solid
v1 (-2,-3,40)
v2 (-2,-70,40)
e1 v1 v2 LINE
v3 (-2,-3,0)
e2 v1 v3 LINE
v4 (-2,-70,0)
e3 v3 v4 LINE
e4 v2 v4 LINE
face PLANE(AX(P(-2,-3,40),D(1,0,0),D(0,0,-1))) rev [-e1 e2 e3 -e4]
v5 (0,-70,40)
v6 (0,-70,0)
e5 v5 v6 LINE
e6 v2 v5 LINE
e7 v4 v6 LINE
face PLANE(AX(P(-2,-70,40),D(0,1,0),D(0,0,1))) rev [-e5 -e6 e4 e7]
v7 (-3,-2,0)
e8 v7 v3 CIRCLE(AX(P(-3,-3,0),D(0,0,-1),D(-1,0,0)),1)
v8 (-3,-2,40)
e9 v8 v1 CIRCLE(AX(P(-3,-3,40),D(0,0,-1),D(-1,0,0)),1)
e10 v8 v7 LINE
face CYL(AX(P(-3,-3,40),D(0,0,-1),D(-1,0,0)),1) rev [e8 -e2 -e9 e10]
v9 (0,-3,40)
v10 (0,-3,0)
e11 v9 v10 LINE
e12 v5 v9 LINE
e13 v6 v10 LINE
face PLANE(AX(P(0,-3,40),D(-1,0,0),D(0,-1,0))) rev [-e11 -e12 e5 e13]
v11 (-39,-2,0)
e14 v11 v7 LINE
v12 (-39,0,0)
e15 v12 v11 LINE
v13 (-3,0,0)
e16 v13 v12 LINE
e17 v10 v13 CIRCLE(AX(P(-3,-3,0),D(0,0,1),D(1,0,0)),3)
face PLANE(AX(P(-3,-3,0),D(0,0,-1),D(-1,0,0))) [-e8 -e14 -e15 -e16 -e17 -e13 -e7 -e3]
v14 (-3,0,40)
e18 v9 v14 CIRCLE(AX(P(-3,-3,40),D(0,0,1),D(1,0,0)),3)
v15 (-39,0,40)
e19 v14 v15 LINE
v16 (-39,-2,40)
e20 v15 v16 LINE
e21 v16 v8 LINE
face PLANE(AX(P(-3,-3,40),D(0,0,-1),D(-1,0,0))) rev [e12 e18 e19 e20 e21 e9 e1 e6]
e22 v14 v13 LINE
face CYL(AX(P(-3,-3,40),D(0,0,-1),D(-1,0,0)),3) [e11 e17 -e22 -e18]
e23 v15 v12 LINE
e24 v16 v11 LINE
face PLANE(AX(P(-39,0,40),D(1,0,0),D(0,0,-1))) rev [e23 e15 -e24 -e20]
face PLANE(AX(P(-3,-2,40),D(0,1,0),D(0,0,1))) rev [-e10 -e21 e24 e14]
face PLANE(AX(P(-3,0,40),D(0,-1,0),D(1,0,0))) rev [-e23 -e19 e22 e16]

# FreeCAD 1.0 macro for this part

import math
import FreeCAD as App
import Part
import Sketcher

V = App.Vector

doc = App.newDocument("Part")
body = doc.addObject("PartDesign::Body", "Body")

sketch1 = body.newObject("Sketcher::SketchObject", "Sketch")
sketch1.AttachmentSupport = (doc.getObject("XY_Plane"), [""])
sketch1.MapMode = "FlatFace"
sketch1.addGeometry([
    Part.LineSegment(V(-3, 0, 0), V(-39, 0, 0)),
    Part.LineSegment(V(-39, 0, 0), V(-39, -2, 0)),
    Part.LineSegment(V(-39, -2, 0), V(-3, -2, 0)),
    Part.ArcOfCircle(Part.Circle(V(-3, -3, 0), V(0, 0, 1), 1), math.radians(0), math.radians(90)),
    Part.LineSegment(V(-2, -3, 0), V(-2, -70, 0)),
    Part.LineSegment(V(-2, -70, 0), V(0, -70, 0)),
    Part.LineSegment(V(0, -70, 0), V(0, -3, 0)),
    Part.ArcOfCircle(Part.Circle(V(-3, -3, 0), V(0, 0, 1), 3), math.radians(0), math.radians(90)),
], False)
sketch1.addConstraint([
    Sketcher.Constraint("Coincident", 0, 2, 1, 1),
    Sketcher.Constraint("Coincident", 1, 2, 2, 1),
    Sketcher.Constraint("Tangent", 2, 2, 3, 2),
    Sketcher.Constraint("Tangent", 3, 1, 4, 1),
    Sketcher.Constraint("Coincident", 4, 2, 5, 1),
    Sketcher.Constraint("Coincident", 5, 2, 6, 1),
    Sketcher.Constraint("Tangent", 6, 2, 7, 1),
    Sketcher.Constraint("Tangent", 7, 2, 0, 1),
    Sketcher.Constraint("Horizontal", 0),
    Sketcher.Constraint("Vertical", 1),
    Sketcher.Constraint("Horizontal", 2),
    Sketcher.Constraint("Vertical", 4),
    Sketcher.Constraint("Horizontal", 5),
    Sketcher.Constraint("Vertical", 6),
    Sketcher.Constraint("Coincident", 7, 3, 3, 3),
    Sketcher.Constraint("PointOnObject", 0, 2, -1),
    Sketcher.Constraint("PointOnObject", 5, 2, -2),
    Sketcher.Constraint("Radius", 3, 1.0),
    Sketcher.Constraint("Radius", 7, 3.0),
    Sketcher.Constraint("DistanceX", 0, 2, 0, 1, 36.0),
    Sketcher.Constraint("DistanceY", 4, 2, 4, 1, 67.0),
])
pad1 = body.newObject("PartDesign::Pad", "Pad")
pad1.Profile = sketch1
pad1.Length = 40

doc.recompute()
